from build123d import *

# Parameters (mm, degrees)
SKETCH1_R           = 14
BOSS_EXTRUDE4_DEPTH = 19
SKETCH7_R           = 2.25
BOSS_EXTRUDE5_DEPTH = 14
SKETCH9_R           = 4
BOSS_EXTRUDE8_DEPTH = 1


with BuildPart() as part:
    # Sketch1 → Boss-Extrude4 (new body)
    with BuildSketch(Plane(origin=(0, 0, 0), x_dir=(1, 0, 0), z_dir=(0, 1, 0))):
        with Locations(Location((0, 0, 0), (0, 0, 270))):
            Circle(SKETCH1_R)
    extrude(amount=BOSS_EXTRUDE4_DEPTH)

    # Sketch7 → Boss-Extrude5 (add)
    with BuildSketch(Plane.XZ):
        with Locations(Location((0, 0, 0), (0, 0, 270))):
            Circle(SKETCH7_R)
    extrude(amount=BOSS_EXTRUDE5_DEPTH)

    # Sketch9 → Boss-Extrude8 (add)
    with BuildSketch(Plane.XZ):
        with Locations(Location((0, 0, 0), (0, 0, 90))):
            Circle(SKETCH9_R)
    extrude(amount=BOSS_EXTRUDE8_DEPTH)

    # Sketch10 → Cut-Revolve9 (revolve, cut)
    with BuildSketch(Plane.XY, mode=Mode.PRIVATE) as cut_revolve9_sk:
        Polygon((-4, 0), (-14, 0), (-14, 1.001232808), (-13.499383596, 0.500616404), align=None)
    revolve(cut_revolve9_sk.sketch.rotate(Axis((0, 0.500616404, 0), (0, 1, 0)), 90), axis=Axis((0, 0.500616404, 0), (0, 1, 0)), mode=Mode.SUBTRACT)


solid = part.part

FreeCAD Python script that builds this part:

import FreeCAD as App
import Part
import Sketcher
Q = App.Units.Quantity

doc = App.newDocument("Part")
body = doc.addObject("PartDesign::Body", "Body")

# Sketch on XZ plane
sketch1 = doc.addObject("Sketcher::SketchObject", "Sketch")
body.addObject(sketch1)
sketch1.AttachmentSupport = (doc.XZ_Plane, [""])
sketch1.MapMode = "FlatFace"
sketch1.addGeometry(Part.Circle(App.Vector(0, 0, 0), App.Vector(0, 0, 1), 14), False)
sketch1.addConstraint(Sketcher.Constraint("Coincident", 0, 3, -1, 1))
sketch1.addConstraint(Sketcher.Constraint("Diameter", 0, Q("28 mm")))
pad1 = doc.addObject("PartDesign::Pad", "Pad")
body.addObject(pad1)
pad1.Profile = sketch1
pad1.Length = 19
pad1.Reversed = True

# Sketch on XZ plane
sketch2 = doc.addObject("Sketcher::SketchObject", "Sketch001")
body.addObject(sketch2)
sketch2.AttachmentSupport = (doc.XZ_Plane, [""])
sketch2.MapMode = "FlatFace"
sketch2.addGeometry(Part.Circle(App.Vector(0, 0, 0), App.Vector(0, 0, 1), 2.25), False)
sketch2.addConstraint(Sketcher.Constraint("Coincident", 0, 3, -1, 1))
sketch2.addConstraint(Sketcher.Constraint("Diameter", 0, Q("4.5 mm")))
pad2 = doc.addObject("PartDesign::Pad", "Pad001")
body.addObject(pad2)
pad2.Profile = sketch2
pad2.Length = 14

# Sketch on XZ plane
sketch3 = doc.addObject("Sketcher::SketchObject", "Sketch002")
body.addObject(sketch3)
sketch3.AttachmentSupport = (doc.XZ_Plane, [""])
sketch3.MapMode = "FlatFace"
sketch3.addGeometry(Part.Circle(App.Vector(0, 0, 0), App.Vector(0, 0, 1), 4), False)
sketch3.addConstraint(Sketcher.Constraint("Coincident", 0, 3, -1, 1))
sketch3.addConstraint(Sketcher.Constraint("Diameter", 0, Q("8 mm")))
pad3 = doc.addObject("PartDesign::Pad", "Pad002")
body.addObject(pad3)
pad3.Profile = sketch3
pad3.Length = 1

# Sketch on XY plane
sketch4 = doc.addObject("Sketcher::SketchObject", "Sketch003")
body.addObject(sketch4)
sketch4.AttachmentSupport = (doc.XY_Plane, [""])
sketch4.MapMode = "FlatFace"
sketch4.addGeometry(Part.LineSegment(App.Vector(-14, 0, 0), App.Vector(-4, 0, 0)), False)
sketch4.addGeometry(Part.LineSegment(App.Vector(-4, 0, 0), App.Vector(-13.499384, 0.500616, 0)), False)
sketch4.addGeometry(Part.LineSegment(App.Vector(-13.499384, 0.500616, 0), App.Vector(-14, 1.001233, 0)), False)
sketch4.addGeometry(Part.LineSegment(App.Vector(-14, 1.001233, 0), App.Vector(-14, 0, 0)), False)
sketch4.addConstraint(Sketcher.Constraint("Coincident", 0, 2, 1, 1))
sketch4.addConstraint(Sketcher.Constraint("Coincident", 1, 2, 2, 1))
sketch4.addConstraint(Sketcher.Constraint("Coincident", 2, 2, 3, 1))
sketch4.addConstraint(Sketcher.Constraint("Coincident", 3, 2, 0, 1))
sketch4.addConstraint(Sketcher.Constraint("Horizontal", 0))
sketch4.addConstraint(Sketcher.Constraint("Vertical", 3))
sketch4.addConstraint(Sketcher.Constraint("PointOnObject", 0, 2, -1))
sketch4.addConstraint(Sketcher.Constraint("DistanceX", 0, 1, 0, 2, Q("10 mm")))
sketch4.addConstraint(Sketcher.Constraint("Angle", 2, Q("135 deg")))
sketch4.addConstraint(Sketcher.Constraint("DistanceX", 0, 2, -1, 1, Q("4 mm")))
sketch4.addConstraint(Sketcher.Constraint("Distance", 2, Q("0.707979 mm")))
sketch4.addConstraint(Sketcher.Constraint("DistanceY", 3, 2, 3, 1, Q("1.001233 mm")))
groove = doc.addObject("PartDesign::Groove", "Groove")
body.addObject(groove)
groove.Profile = sketch4
groove.ReferenceAxis = (sketch4, ["V_Axis"])
groove.Angle = 360

doc.recompute()
